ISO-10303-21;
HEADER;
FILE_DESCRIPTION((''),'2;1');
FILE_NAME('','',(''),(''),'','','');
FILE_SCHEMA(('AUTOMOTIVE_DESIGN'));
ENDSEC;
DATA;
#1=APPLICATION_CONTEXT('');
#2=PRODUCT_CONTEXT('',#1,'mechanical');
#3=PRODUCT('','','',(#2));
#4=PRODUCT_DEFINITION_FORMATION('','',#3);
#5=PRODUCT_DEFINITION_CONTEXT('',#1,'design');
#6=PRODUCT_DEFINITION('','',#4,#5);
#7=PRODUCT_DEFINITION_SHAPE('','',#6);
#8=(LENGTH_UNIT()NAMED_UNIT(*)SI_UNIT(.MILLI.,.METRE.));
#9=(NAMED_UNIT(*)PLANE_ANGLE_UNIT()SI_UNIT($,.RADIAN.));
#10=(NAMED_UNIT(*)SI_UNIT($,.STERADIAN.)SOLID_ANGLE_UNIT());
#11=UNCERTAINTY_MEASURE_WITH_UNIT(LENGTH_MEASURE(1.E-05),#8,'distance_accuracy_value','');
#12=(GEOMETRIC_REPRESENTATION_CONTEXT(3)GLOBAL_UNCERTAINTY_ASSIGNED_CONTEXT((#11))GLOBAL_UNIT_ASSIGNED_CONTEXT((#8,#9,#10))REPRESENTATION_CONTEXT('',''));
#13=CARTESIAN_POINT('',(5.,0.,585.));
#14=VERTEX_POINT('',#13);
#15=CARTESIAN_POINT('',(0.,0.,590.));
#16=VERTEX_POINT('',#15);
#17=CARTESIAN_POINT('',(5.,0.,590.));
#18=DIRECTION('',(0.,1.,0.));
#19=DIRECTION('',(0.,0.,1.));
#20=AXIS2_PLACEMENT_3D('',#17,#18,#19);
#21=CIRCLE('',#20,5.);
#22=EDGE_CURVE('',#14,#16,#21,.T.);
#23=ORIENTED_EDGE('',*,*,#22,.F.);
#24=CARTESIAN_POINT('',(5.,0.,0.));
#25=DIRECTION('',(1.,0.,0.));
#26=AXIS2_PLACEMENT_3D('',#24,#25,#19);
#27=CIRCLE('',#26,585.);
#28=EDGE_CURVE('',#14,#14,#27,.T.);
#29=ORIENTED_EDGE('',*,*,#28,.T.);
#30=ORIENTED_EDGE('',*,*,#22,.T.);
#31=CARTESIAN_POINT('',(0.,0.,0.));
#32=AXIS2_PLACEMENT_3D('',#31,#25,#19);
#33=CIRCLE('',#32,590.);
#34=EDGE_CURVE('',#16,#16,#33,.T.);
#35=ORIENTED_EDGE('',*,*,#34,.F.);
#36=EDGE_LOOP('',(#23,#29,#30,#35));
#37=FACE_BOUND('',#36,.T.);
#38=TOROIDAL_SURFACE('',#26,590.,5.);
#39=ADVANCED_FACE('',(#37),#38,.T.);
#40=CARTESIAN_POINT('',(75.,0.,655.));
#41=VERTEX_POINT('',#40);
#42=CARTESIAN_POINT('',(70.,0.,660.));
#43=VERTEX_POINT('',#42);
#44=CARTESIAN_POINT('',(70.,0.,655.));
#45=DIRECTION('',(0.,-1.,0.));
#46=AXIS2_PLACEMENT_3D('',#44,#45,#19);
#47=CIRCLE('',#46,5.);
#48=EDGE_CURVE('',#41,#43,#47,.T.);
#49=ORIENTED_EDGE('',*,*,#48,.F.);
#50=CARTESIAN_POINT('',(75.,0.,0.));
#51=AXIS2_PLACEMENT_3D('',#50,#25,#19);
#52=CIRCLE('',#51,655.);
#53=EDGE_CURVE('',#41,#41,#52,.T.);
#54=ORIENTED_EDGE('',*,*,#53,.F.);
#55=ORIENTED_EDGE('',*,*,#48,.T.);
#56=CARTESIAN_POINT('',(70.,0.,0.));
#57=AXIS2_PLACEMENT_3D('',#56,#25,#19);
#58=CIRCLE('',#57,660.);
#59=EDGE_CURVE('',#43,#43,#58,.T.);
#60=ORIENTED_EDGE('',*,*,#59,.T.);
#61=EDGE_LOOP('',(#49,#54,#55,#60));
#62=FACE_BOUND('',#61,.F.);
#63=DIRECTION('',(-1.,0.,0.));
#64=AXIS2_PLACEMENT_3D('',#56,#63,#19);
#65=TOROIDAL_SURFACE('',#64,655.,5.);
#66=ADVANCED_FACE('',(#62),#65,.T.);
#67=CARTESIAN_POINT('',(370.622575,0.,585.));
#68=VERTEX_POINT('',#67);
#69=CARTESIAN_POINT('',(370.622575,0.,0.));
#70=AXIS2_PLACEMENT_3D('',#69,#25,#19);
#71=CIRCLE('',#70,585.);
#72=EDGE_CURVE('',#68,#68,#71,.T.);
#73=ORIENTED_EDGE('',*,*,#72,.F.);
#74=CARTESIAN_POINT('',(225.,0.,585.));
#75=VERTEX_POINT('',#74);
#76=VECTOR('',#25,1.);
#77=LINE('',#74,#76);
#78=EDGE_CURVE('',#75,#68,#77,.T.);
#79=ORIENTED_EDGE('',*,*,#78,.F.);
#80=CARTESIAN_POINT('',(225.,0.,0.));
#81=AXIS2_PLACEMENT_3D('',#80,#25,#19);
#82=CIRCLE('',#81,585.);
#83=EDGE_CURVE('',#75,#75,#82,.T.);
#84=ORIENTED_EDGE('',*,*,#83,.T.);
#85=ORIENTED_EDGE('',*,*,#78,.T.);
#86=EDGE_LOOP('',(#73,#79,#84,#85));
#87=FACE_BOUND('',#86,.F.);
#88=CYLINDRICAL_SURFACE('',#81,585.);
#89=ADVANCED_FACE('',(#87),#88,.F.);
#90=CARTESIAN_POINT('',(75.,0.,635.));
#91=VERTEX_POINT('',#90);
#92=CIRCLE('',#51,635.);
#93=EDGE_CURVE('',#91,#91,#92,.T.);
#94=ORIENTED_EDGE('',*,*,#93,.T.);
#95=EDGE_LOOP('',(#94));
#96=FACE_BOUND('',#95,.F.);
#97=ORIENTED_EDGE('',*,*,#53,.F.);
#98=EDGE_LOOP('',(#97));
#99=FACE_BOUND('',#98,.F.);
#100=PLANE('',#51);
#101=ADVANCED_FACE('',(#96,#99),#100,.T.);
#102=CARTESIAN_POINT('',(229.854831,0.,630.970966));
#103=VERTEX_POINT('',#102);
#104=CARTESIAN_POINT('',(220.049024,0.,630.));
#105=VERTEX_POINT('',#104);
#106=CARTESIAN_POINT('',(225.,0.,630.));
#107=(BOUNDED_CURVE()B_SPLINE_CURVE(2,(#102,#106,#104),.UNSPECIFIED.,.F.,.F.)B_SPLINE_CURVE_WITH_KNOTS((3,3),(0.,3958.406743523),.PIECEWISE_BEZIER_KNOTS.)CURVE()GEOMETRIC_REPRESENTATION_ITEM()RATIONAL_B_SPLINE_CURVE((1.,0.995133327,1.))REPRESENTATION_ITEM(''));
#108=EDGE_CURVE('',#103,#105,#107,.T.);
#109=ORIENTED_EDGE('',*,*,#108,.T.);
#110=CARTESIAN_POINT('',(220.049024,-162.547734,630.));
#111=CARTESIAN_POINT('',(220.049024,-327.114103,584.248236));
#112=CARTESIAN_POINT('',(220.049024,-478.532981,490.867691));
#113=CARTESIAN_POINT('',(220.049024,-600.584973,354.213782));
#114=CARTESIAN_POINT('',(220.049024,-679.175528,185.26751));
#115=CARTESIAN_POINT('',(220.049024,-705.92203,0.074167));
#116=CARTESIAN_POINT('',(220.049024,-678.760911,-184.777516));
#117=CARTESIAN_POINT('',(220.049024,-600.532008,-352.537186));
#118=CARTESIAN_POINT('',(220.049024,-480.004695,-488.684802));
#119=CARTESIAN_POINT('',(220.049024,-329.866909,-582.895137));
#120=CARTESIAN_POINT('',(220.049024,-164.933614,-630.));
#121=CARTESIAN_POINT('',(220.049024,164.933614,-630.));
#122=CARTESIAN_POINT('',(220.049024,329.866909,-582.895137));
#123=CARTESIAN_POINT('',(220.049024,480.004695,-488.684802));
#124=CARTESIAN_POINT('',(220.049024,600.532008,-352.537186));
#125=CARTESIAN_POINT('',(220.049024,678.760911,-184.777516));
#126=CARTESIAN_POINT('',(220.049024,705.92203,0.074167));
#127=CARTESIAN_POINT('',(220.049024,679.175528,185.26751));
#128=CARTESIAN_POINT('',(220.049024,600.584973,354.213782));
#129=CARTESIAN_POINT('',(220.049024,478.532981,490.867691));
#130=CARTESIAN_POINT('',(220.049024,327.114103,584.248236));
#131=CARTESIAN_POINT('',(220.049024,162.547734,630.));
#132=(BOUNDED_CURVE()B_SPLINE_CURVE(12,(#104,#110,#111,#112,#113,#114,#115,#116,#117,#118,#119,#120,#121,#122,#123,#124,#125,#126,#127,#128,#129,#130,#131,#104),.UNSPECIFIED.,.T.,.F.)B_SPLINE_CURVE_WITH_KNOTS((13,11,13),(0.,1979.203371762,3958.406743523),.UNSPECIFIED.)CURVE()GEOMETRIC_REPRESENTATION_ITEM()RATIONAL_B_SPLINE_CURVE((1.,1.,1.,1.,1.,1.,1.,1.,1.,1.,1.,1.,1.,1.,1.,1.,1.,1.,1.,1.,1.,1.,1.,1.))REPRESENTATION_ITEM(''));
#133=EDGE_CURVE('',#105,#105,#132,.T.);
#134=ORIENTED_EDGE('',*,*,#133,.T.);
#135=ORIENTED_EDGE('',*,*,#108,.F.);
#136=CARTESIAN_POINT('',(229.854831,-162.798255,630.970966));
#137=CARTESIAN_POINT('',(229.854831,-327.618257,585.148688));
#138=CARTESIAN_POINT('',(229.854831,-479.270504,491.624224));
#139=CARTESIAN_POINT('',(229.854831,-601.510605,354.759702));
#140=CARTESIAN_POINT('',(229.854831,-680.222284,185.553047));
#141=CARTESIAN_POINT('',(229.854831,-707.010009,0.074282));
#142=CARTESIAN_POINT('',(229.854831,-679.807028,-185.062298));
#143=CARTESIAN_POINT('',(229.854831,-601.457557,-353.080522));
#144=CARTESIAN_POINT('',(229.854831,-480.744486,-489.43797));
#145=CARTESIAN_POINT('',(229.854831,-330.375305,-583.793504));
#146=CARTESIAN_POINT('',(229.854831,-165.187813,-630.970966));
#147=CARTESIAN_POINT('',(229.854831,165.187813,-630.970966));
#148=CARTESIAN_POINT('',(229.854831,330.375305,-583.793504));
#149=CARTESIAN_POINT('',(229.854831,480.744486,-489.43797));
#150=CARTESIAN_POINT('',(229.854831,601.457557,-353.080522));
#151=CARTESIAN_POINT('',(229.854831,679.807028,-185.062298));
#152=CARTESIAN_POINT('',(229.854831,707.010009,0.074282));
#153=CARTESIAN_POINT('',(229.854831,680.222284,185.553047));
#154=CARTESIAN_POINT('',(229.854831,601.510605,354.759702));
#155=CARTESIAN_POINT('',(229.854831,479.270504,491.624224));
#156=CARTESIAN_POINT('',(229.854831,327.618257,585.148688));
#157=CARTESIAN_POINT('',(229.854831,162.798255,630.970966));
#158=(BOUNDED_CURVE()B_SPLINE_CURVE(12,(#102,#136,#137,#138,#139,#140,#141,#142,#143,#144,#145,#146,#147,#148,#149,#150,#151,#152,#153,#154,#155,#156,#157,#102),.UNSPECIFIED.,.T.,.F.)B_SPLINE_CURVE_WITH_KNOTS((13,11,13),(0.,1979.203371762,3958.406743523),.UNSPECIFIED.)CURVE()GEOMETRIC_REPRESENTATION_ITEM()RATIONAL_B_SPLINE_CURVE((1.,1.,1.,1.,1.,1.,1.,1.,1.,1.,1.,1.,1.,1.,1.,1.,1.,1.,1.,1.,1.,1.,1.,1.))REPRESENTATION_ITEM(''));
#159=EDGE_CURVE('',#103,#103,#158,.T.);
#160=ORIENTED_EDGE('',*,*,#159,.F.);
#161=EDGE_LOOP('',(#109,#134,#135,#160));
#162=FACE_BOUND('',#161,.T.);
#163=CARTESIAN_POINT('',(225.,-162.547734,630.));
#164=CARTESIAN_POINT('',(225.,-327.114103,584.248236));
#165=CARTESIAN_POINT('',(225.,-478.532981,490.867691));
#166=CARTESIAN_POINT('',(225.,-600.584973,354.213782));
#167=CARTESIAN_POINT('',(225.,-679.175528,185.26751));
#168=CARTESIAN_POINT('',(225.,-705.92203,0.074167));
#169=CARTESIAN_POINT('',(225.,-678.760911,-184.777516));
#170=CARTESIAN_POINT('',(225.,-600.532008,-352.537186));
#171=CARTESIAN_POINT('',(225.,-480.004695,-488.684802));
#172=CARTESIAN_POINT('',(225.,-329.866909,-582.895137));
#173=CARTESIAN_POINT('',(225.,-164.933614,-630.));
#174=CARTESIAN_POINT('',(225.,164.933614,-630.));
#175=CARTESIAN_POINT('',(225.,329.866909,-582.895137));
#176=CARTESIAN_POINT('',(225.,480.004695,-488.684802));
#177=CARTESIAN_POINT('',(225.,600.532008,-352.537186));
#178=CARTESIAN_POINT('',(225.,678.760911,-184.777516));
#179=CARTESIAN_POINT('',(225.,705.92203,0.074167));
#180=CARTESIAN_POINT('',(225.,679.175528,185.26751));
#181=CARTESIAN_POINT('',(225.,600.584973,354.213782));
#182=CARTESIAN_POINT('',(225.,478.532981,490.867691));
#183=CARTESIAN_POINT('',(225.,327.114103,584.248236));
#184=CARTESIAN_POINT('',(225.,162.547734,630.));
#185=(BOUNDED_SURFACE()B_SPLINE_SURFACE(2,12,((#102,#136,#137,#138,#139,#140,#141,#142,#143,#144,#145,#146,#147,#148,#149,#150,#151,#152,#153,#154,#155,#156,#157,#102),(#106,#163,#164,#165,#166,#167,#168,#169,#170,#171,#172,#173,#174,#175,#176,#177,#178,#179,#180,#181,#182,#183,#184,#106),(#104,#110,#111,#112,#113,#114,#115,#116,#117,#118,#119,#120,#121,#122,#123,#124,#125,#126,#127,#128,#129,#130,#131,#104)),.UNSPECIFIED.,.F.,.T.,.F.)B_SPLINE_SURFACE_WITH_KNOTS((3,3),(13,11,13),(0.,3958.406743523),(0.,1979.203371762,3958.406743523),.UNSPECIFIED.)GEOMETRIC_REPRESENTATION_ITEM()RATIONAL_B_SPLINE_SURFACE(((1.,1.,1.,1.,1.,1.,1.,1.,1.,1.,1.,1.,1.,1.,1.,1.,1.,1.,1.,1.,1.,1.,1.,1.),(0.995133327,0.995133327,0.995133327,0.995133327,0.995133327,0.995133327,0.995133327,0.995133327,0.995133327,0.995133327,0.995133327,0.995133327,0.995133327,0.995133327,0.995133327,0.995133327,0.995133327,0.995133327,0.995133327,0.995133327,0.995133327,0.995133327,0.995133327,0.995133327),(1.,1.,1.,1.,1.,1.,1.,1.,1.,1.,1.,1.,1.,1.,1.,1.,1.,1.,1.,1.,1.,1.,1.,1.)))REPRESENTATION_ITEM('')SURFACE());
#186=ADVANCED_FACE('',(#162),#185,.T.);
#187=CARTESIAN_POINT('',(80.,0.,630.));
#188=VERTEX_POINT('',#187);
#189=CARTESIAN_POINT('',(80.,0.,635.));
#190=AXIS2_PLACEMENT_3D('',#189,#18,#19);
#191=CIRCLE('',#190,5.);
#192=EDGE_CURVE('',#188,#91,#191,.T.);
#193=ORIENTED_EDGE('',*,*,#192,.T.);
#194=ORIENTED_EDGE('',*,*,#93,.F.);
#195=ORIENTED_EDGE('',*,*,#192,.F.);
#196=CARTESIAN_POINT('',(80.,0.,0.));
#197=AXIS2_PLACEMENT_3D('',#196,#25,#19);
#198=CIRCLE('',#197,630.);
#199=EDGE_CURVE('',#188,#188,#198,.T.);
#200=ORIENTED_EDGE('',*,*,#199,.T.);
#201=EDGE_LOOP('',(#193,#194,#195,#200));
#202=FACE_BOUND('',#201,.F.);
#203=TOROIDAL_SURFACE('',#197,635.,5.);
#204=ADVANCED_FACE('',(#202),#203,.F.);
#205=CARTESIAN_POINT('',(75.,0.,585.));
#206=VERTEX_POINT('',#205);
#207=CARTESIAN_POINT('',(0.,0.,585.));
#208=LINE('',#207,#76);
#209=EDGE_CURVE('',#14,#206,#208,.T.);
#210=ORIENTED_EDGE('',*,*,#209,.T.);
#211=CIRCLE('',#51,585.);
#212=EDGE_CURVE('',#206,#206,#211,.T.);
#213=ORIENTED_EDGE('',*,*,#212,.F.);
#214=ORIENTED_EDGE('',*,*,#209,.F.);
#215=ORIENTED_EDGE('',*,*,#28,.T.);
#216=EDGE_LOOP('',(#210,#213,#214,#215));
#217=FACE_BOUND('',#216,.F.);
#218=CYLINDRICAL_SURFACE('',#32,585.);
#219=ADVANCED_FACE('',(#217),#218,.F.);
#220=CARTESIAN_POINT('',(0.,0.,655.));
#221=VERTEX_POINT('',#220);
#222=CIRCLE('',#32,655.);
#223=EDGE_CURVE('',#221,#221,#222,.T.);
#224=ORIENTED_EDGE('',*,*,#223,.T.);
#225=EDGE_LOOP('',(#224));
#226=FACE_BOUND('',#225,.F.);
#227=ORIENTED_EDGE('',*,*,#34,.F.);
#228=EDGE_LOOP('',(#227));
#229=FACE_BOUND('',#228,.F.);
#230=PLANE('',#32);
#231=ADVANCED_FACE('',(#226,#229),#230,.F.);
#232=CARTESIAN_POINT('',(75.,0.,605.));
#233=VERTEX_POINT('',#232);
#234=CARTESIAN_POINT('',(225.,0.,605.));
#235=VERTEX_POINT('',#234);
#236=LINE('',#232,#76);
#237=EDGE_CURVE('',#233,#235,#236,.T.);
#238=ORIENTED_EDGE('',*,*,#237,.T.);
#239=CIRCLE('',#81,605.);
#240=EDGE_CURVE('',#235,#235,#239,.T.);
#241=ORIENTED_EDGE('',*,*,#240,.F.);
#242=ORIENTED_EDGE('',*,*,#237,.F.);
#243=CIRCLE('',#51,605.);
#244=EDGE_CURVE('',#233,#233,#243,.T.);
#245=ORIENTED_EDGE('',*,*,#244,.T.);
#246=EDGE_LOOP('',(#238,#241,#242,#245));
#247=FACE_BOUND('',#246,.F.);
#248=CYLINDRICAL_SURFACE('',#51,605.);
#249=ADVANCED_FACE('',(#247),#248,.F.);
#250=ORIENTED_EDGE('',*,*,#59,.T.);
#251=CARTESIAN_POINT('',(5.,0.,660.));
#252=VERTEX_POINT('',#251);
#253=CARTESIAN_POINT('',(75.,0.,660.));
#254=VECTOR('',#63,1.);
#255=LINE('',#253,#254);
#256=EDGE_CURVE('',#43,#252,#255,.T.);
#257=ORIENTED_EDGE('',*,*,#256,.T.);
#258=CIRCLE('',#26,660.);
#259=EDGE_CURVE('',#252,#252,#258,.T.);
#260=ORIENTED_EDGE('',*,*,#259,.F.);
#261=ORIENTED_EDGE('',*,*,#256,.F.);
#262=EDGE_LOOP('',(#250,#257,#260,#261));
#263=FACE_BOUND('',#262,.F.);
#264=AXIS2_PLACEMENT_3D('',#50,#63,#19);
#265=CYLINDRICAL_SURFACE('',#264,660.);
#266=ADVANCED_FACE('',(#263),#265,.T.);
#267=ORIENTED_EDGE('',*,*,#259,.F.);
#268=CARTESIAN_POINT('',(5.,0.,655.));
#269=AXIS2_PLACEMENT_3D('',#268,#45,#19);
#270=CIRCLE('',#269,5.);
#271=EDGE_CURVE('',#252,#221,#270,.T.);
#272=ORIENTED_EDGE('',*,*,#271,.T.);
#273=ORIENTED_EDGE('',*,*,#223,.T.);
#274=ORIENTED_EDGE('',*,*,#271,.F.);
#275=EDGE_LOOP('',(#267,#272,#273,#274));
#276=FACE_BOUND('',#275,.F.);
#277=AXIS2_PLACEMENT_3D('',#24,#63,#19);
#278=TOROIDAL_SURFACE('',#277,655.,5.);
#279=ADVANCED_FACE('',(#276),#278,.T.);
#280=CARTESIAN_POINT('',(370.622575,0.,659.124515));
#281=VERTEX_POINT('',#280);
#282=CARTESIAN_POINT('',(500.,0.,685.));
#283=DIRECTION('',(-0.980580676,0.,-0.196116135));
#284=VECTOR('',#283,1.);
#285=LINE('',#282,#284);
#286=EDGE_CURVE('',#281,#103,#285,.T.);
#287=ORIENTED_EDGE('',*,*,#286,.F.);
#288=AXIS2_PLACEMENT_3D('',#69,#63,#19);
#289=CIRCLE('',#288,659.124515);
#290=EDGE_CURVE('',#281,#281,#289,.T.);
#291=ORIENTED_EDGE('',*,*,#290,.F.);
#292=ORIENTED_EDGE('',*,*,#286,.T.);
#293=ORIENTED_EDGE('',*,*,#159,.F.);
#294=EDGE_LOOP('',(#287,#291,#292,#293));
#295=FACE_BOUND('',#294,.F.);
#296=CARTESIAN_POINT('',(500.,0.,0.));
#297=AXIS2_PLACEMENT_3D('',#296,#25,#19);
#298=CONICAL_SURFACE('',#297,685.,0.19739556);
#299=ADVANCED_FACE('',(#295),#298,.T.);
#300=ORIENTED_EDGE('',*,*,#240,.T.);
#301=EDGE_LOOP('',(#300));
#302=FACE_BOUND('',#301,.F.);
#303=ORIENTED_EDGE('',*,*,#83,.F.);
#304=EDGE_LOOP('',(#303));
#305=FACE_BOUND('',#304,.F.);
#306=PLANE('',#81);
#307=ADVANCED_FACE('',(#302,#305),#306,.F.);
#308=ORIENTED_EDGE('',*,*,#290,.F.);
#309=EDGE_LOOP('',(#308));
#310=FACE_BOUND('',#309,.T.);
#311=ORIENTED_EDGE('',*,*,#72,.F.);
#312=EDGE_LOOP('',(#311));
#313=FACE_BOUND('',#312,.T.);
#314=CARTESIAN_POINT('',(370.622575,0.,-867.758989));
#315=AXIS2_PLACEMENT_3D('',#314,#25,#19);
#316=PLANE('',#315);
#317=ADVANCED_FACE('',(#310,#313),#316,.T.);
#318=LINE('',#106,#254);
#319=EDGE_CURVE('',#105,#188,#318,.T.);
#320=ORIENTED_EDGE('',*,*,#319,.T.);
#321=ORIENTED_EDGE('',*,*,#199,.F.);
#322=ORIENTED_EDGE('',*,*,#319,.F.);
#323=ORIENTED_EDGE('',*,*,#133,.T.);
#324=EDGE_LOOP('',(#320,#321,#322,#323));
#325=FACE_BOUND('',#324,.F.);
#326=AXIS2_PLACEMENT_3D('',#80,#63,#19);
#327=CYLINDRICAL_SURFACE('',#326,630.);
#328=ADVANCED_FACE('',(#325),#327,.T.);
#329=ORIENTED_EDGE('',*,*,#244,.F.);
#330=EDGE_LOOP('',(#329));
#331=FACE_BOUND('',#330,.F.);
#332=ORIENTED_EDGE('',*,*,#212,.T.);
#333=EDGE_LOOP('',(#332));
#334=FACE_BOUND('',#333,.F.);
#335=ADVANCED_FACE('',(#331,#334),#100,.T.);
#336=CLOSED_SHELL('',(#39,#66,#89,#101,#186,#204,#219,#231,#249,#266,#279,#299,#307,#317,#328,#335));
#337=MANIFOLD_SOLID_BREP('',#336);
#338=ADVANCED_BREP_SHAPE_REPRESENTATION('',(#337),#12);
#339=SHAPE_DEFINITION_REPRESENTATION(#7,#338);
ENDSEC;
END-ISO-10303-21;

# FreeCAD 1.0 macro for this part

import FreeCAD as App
import Part
import Sketcher


def edges_at(feature, points):
    """Names of the edges that pass closest to the given points."""
    edges = feature.Shape.Edges
    near = lambda p: min(range(len(edges)), key=lambda i: edges[i].distToShape(Part.Vertex(*p))[0])
    return sorted({f"Edge{near(p) + 1}" for p in points})

doc = App.newDocument("Part")
body = doc.addObject("PartDesign::Body", "Body")

# Sketch on XZ plane
sketch1 = body.newObject("Sketcher::SketchObject", "Sketch")
sketch1.AttachmentSupport = (doc.getObject("XZ_Plane"), [""])
sketch1.MapMode = "FlatFace"
sketch1.addGeometry([
    Part.LineSegment(App.Vector(75, 660, 0), App.Vector(0, 660, 0)),  # 0
    Part.LineSegment(App.Vector(0, 660, 0), App.Vector(0, 585, 0)),  # 1
    Part.LineSegment(App.Vector(0, 585, 0), App.Vector(75, 585, 0)),  # 2
    Part.LineSegment(App.Vector(75, 585, 0), App.Vector(75, 605, 0)),  # 3
    Part.LineSegment(App.Vector(75, 605, 0), App.Vector(225, 605, 0)),  # 4
    Part.LineSegment(App.Vector(225, 605, 0), App.Vector(225, 585, 0)),  # 5
    Part.LineSegment(App.Vector(225, 585, 0), App.Vector(1070, 585, 0)),  # 6
    Part.LineSegment(App.Vector(1070, 585, 0), App.Vector(1070, 685, 0)),  # 7
    Part.LineSegment(App.Vector(1070, 685, 0), App.Vector(500, 685, 0)),  # 8
    Part.LineSegment(App.Vector(500, 685, 0), App.Vector(225, 630, 0)),  # 9
    Part.LineSegment(App.Vector(225, 630, 0), App.Vector(75, 630, 0)),  # 10
    Part.LineSegment(App.Vector(75, 630, 0), App.Vector(75, 660, 0)),  # 11
], False)
sketch1.addConstraint([
    Sketcher.Constraint("Coincident", 0, 2, 1, 1),
    Sketcher.Constraint("Coincident", 1, 2, 2, 1),
    Sketcher.Constraint("Coincident", 2, 2, 3, 1),
    Sketcher.Constraint("Coincident", 3, 2, 4, 1),
    Sketcher.Constraint("Coincident", 4, 2, 5, 1),
    Sketcher.Constraint("Coincident", 5, 2, 6, 1),
    Sketcher.Constraint("Coincident", 6, 2, 7, 1),
    Sketcher.Constraint("Coincident", 7, 2, 8, 1),
    Sketcher.Constraint("Coincident", 8, 2, 9, 1),
    Sketcher.Constraint("Coincident", 9, 2, 10, 1),
    Sketcher.Constraint("Coincident", 10, 2, 11, 1),
    Sketcher.Constraint("Coincident", 11, 2, 0, 1),
    Sketcher.Constraint("Horizontal", 0),
    Sketcher.Constraint("Vertical", 1),
    Sketcher.Constraint("Horizontal", 2),
    Sketcher.Constraint("Vertical", 3),
    Sketcher.Constraint("Horizontal", 4),
    Sketcher.Constraint("Vertical", 5),
    Sketcher.Constraint("Horizontal", 6),
    Sketcher.Constraint("Vertical", 7),
    Sketcher.Constraint("Horizontal", 8),
    Sketcher.Constraint("Horizontal", 10),
    Sketcher.Constraint("Vertical", 11),
    Sketcher.Constraint("PointOnObject", 0, 2, -2),
    Sketcher.Constraint("Horizontal", 2, 2, 5, 2),
    Sketcher.Constraint("Vertical", 5, 2, 9, 2),
    Sketcher.Constraint("Vertical", 3, 2, 10, 2),
    Sketcher.Constraint("Equal", 2, 1),
    Sketcher.Constraint("DistanceX", 0, 2, 0, 1, 75.0),
    Sketcher.Constraint("DistanceX", 4, 1, 4, 2, 150.0),
    Sketcher.Constraint("DistanceX", 6, 1, 6, 2, 845.0),
    Sketcher.Constraint("DistanceX", 8, 2, 8, 1, 570.0),
    Sketcher.Constraint("DistanceY", 3, 1, 3, 2, 20.0),
    Sketcher.Constraint("DistanceY", 7, 1, 7, 2, 100.0),
    Sketcher.Constraint("DistanceY", 11, 1, 11, 2, 30.0),
    Sketcher.Constraint("DistanceY", -1, 1, 0, 2, 660.0),
])
revolution = body.newObject("PartDesign::Revolution", "Revolution")
revolution.Profile = sketch1
revolution.ReferenceAxis = (sketch1, ["H_Axis"])
revolution.Angle = 360
doc.recompute()

fillet = body.newObject("PartDesign::Fillet", "Fillet")
fillet.Base = (revolution, edges_at(revolution, [(500, 0, -685), (225, 0, -630)]))
fillet.Radius = 50
doc.recompute()

fillet2 = body.newObject("PartDesign::Fillet", "Fillet001")
fillet2.Base = (fillet, edges_at(fillet, [
    (75, 0, -660),
    (75, 0, -630),
    (0, 0, -660),
    (0, 0, -585),
    (1070, 0, -685),
]))
fillet2.Radius = 5

# Sketch on XZ plane
sketch2 = body.newObject("Sketcher::SketchObject", "Sketch001")
sketch2.AttachmentSupport = (doc.getObject("XZ_Plane"), [""])
sketch2.MapMode = "FlatFace"
sketch2.addGeometry([
    Part.LineSegment(App.Vector(370.622575, 876.983345, 0), App.Vector(370.622575, -867.758989, 0)),
    Part.LineSegment(App.Vector(370.622575, -867.758989, 0), App.Vector(1277.485132, -867.758989, 0)),
    Part.LineSegment(App.Vector(1277.485132, -867.758989, 0), App.Vector(1277.485132, 876.983345, 0)),
    Part.LineSegment(App.Vector(1277.485132, 876.983345, 0), App.Vector(370.622575, 876.983345, 0)),
], False)
sketch2.addConstraint([
    Sketcher.Constraint("Coincident", 0, 2, 1, 1),
    Sketcher.Constraint("Coincident", 1, 2, 2, 1),
    Sketcher.Constraint("Coincident", 2, 2, 3, 1),
    Sketcher.Constraint("Coincident", 3, 2, 0, 1),
    Sketcher.Constraint("Vertical", 0),
    Sketcher.Constraint("Horizontal", 1),
    Sketcher.Constraint("Vertical", 2),
    Sketcher.Constraint("Horizontal", 3),
    Sketcher.Constraint("DistanceX", 1, 1, 1, 2, 906.862557),
    Sketcher.Constraint("DistanceY", 0, 2, 0, 1, 1744.742334),
    Sketcher.Constraint("DistanceY", 0, 2, -1, 1, 867.758989),
    Sketcher.Constraint("DistanceX", -1, 1, 0, 2, 370.622575),
])
pocket1 = body.newObject("PartDesign::Pocket", "Pocket")
pocket1.Profile = sketch2
pocket1.Length = 2000
pocket1.Midplane = True

doc.recompute()
